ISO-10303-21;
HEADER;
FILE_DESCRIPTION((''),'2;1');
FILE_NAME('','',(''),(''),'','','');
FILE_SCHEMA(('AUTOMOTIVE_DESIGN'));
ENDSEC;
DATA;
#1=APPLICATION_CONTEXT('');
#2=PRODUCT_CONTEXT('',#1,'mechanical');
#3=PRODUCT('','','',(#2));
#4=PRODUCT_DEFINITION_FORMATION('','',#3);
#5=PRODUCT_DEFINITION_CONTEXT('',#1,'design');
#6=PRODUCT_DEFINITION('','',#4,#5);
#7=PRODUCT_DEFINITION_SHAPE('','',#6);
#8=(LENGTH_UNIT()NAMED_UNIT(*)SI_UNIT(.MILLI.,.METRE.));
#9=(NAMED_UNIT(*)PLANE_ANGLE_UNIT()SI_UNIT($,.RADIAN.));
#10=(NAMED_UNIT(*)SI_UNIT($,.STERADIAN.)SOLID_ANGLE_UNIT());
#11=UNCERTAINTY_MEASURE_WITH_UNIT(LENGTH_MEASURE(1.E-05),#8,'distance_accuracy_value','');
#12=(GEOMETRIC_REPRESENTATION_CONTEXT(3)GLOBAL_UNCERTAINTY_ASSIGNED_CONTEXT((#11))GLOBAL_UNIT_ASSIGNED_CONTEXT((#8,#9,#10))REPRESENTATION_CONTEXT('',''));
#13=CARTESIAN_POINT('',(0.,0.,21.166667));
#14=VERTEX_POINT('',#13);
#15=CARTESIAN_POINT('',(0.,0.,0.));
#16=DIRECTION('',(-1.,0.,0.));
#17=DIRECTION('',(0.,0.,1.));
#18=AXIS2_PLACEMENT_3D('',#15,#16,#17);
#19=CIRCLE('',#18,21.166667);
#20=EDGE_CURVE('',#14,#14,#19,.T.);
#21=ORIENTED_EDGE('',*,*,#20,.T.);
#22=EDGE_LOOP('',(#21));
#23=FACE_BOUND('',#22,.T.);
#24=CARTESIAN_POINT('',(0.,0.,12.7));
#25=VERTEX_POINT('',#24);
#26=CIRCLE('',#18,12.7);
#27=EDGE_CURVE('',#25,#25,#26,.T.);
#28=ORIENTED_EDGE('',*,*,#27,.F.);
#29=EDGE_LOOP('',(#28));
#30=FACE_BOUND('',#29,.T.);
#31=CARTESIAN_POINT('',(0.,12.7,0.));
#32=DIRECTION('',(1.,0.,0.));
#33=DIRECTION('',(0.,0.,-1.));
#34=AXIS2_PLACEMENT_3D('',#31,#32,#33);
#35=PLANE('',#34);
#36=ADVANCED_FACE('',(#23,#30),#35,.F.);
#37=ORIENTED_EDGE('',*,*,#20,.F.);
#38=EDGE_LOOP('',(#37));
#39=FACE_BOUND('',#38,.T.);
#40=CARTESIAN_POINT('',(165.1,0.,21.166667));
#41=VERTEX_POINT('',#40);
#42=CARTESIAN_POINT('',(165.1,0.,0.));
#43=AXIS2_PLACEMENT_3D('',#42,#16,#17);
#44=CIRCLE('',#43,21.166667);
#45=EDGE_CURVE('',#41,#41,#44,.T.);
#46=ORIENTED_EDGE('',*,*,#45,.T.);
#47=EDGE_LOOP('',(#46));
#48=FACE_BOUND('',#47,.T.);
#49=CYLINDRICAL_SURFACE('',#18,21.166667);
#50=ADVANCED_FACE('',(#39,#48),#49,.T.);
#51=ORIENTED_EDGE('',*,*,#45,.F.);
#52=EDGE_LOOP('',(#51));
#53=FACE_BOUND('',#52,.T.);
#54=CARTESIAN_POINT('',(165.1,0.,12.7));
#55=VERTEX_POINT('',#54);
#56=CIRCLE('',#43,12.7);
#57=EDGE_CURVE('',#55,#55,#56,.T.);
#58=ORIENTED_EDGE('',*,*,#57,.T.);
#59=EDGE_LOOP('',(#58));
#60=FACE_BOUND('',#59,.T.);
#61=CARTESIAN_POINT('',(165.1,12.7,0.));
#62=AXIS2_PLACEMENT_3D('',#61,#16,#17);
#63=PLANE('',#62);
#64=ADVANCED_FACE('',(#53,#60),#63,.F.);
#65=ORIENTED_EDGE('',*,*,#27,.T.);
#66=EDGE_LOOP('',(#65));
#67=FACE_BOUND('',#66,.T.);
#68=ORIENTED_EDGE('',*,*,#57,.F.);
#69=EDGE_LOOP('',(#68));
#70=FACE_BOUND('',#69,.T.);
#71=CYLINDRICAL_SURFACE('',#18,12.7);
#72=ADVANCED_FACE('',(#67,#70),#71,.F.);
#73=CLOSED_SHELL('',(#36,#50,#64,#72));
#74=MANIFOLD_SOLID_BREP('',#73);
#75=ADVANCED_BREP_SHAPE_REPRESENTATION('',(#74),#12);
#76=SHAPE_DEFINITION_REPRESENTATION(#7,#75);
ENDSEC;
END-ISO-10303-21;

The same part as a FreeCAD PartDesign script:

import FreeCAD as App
import Part
import Sketcher
Q = App.Units.Quantity

doc = App.newDocument("Part")
params = doc.addObject("Spreadsheet::Sheet", "Params")
for row, (alias, value) in enumerate([
    ("sketch1_width", "6.5 in"),
    ("revolution_angle", "360 deg"),
], start=1):
    params.set(f"A{row}", alias)
    params.set(f"B{row}", "=" + value)
    params.setAlias(f"B{row}", alias)

body = doc.addObject("PartDesign::Body", "Body")

# Sketch on XY plane
sketch1 = doc.addObject("Sketcher::SketchObject", "Sketch")
body.addObject(sketch1)
sketch1.AttachmentSupport = (doc.XY_Plane, [""])
sketch1.MapMode = "FlatFace"
sketch1.addGeometry([
    Part.LineSegment(App.Vector(0, 21, 0), App.Vector(0, 13, 0)),
    Part.LineSegment(App.Vector(0, 13, 0), App.Vector(165, 13, 0)),
    Part.LineSegment(App.Vector(165, 13, 0), App.Vector(165, 21, 0)),
    Part.LineSegment(App.Vector(165, 21, 0), App.Vector(0, 21, 0)),
], False)
sketch1.addConstraint([
    Sketcher.Constraint("Coincident", 0, 2, 1, 1),
    Sketcher.Constraint("Coincident", 1, 2, 2, 1),
    Sketcher.Constraint("Coincident", 2, 2, 3, 1),
    Sketcher.Constraint("Coincident", 3, 2, 0, 1),
    Sketcher.Constraint("Vertical", 0),
    Sketcher.Constraint("Horizontal", 1),
    Sketcher.Constraint("Vertical", 2),
    Sketcher.Constraint("Horizontal", 3),
    Sketcher.Constraint("PointOnObject", 0, 2, -2),
    Sketcher.Constraint("DistanceX", 1, 1, 1, 2, Q("6.5 in")),
    Sketcher.Constraint("DistanceY", -1, 1, 0, 2, Q("0.5 in")),
    Sketcher.Constraint("DistanceY", 0, 2, 0, 1, Q("8.466667 mm")),
])
sketch1.setExpression("Constraints[9]", "Params.sketch1_width")
revolution = doc.addObject("PartDesign::Revolution", "Revolution")
body.addObject(revolution)
revolution.Profile = sketch1
revolution.ReferenceAxis = (sketch1, ["H_Axis"])
revolution.setExpression("Angle", "Params.revolution_angle")

doc.recompute()
